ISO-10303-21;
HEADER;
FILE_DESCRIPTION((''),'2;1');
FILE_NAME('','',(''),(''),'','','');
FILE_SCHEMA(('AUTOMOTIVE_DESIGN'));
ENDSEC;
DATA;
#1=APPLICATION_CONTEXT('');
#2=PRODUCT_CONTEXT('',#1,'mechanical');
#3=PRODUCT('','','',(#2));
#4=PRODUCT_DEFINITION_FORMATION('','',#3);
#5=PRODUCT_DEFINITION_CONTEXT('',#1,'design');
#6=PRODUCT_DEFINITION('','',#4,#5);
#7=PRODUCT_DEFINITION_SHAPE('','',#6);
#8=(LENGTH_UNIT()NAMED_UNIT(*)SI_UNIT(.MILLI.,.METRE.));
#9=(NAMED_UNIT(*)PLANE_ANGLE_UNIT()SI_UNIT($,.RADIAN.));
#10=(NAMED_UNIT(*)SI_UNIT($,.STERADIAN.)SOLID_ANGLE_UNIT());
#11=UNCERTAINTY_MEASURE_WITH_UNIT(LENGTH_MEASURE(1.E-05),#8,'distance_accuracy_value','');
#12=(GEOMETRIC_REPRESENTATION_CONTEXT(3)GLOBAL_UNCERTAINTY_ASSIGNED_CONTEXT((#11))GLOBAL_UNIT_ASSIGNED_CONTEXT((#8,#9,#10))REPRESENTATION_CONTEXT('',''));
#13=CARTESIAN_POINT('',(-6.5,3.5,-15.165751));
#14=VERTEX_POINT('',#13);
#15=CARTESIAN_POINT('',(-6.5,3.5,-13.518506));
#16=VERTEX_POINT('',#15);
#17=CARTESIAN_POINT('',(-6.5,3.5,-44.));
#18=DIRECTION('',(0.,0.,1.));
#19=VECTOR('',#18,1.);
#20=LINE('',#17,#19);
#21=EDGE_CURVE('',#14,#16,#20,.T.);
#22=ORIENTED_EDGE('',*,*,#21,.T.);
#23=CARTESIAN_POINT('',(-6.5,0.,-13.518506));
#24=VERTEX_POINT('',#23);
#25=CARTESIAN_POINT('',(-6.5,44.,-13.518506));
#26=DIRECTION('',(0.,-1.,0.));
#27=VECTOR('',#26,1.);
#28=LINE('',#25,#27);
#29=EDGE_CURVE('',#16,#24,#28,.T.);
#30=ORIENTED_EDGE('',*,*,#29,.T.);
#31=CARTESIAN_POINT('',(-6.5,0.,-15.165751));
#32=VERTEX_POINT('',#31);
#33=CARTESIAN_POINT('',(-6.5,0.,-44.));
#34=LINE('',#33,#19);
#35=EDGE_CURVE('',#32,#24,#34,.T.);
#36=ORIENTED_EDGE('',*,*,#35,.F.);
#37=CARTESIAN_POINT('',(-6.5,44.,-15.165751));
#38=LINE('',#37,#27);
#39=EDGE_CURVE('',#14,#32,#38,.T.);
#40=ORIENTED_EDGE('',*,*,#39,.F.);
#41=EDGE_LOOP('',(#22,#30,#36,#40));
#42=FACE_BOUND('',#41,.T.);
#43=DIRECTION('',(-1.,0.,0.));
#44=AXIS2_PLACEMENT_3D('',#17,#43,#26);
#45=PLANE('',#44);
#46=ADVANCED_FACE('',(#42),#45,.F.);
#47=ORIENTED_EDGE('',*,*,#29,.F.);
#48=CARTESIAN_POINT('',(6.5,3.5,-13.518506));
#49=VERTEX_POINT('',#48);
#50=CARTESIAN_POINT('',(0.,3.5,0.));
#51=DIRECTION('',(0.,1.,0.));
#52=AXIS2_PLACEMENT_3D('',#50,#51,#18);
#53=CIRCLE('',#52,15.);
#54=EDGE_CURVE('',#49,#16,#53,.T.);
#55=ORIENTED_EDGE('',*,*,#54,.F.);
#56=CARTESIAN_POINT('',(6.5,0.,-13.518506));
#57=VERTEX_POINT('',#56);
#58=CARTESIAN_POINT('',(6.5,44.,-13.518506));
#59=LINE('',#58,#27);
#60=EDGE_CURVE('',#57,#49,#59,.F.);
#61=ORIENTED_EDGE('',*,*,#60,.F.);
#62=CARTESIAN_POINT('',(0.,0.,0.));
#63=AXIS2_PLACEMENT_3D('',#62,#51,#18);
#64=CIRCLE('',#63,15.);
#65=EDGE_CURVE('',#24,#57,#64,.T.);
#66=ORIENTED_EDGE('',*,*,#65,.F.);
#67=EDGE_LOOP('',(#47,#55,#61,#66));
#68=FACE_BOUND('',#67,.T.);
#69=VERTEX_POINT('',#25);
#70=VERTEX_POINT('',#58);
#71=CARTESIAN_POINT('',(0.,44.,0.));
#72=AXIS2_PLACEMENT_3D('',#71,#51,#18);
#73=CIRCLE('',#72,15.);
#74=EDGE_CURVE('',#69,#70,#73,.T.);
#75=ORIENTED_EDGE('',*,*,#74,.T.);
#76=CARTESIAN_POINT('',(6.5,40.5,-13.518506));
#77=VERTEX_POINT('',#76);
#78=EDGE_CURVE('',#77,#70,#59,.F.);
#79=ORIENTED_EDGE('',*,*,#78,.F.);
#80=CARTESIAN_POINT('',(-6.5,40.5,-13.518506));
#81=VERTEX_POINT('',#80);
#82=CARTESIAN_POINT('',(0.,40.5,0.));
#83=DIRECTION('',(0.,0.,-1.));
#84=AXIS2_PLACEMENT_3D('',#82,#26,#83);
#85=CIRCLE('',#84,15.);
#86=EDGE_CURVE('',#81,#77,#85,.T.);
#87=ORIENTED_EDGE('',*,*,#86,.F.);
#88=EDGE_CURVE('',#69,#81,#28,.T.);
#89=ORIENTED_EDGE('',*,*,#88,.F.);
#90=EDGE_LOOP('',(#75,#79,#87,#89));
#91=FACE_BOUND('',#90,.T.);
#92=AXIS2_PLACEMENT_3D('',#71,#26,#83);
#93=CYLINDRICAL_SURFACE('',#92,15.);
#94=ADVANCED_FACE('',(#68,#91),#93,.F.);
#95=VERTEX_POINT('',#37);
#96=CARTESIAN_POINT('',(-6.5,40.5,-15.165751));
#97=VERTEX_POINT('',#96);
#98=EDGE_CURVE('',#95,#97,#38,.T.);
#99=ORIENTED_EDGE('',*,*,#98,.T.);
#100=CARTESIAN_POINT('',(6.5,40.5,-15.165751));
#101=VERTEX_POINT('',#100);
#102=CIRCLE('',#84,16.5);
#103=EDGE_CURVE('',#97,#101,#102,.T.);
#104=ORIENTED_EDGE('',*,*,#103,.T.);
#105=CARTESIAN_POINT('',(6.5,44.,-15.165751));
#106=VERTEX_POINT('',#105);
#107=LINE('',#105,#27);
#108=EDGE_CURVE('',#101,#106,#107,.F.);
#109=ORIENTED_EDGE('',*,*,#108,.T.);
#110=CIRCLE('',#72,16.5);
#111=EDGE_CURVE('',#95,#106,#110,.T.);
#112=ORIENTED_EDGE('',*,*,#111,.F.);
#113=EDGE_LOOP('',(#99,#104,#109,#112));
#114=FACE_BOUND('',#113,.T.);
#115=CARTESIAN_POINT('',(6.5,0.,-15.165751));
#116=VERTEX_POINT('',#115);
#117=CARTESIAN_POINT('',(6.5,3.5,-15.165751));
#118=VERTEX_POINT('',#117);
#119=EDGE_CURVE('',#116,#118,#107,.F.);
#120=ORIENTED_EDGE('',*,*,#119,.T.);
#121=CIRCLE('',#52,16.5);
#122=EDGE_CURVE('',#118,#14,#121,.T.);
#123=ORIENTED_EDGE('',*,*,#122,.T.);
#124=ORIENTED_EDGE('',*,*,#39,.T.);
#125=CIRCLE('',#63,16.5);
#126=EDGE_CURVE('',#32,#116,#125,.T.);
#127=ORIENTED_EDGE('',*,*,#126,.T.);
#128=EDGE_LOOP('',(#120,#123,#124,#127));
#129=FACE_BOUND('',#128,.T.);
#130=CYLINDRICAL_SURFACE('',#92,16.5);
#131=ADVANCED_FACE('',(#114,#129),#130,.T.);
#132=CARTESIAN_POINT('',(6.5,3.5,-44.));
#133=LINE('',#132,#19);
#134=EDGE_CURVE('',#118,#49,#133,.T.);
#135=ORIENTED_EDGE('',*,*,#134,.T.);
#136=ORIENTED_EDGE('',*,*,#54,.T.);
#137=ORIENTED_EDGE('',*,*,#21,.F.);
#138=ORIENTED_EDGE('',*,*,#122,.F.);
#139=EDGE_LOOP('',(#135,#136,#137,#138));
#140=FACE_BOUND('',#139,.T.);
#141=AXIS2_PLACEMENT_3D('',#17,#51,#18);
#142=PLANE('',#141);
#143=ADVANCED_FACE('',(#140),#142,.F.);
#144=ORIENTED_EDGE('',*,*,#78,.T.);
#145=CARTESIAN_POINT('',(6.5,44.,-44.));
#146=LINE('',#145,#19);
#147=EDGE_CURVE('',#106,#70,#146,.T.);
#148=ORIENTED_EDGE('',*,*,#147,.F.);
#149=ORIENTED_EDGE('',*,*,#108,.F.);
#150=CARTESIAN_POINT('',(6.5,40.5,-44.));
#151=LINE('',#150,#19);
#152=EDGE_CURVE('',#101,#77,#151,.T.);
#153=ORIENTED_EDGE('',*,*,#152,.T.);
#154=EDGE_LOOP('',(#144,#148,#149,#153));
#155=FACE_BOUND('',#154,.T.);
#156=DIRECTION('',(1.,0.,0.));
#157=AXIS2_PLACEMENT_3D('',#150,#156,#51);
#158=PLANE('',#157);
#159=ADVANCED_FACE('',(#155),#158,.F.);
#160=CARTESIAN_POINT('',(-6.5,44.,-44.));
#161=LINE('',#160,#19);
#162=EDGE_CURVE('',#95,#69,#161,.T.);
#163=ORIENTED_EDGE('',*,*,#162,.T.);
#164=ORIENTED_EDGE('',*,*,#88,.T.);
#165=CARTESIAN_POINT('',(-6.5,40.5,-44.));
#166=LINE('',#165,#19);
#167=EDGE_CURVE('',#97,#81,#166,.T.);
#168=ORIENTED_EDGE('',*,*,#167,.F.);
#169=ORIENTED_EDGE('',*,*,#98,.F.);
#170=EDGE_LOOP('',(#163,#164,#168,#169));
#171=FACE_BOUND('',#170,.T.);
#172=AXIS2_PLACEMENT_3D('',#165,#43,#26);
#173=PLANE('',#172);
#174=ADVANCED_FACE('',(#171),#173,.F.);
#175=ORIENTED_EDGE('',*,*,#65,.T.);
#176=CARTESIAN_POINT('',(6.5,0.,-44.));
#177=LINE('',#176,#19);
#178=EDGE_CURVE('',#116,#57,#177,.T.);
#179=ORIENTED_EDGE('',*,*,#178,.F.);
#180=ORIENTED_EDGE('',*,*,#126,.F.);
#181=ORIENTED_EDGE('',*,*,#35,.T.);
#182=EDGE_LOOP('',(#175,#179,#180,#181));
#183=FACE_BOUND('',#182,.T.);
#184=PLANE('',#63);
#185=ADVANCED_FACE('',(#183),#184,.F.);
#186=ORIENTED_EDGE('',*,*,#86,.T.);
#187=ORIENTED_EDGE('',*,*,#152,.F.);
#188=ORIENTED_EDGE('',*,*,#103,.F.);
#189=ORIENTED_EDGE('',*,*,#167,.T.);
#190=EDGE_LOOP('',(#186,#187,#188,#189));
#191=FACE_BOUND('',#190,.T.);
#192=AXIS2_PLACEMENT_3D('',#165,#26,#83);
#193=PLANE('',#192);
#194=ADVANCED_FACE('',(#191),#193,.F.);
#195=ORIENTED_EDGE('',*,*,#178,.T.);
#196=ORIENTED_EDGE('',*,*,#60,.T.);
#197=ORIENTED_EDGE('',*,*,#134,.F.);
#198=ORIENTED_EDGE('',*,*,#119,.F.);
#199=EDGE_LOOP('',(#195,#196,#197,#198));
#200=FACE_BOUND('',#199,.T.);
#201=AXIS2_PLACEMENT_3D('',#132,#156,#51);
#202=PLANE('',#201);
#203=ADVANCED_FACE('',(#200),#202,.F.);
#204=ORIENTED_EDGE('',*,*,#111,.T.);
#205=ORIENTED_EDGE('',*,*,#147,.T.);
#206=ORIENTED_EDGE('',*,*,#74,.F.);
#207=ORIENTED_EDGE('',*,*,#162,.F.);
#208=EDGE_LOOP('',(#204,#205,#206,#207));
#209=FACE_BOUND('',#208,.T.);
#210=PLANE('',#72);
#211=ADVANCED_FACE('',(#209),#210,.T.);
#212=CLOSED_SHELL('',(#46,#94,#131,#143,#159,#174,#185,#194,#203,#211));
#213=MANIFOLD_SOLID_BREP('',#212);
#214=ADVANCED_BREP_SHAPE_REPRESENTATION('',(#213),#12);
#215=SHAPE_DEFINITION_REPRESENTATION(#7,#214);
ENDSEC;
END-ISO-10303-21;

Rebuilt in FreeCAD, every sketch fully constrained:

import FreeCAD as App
import Part
import Sketcher

V = App.Vector


def add_polygon(sketch, points):
    """Adds a closed chain of lines whose ends are joined by coincident constraints."""
    first, n = sketch.GeometryCount, len(points)
    for a, b in zip(points, points[1:] + points[:1]):
        sketch.addGeometry(Part.LineSegment(App.Vector(*a, 0), App.Vector(*b, 0)), False)
    for i in range(n):
        sketch.addConstraint(Sketcher.Constraint("Coincident", first + i, 2, first + (i + 1) % n, 1))

doc = App.newDocument("Part")
body = doc.addObject("PartDesign::Body", "Body")

# Sketch on XZ plane
sketch1 = doc.addObject("Sketcher::SketchObject", "Sketch")
body.addObject(sketch1)
sketch1.AttachmentSupport = (doc.XZ_Plane, [""])
sketch1.MapMode = "FlatFace"
sketch1.addGeometry([
    Part.Circle(V(0, 0, 0), V(0, 0, 1), 16.5),
    Part.Circle(V(0, 0, 0), V(0, 0, 1), 15),
], False)
sketch1.addConstraint([
    Sketcher.Constraint("Coincident", 0, 3, -1, 1),
    Sketcher.Constraint("Coincident", 1, 3, -1, 1),
    Sketcher.Constraint("Diameter", 0, 33.0),
    Sketcher.Constraint("Diameter", 1, 30.0),
])
pad1 = doc.addObject("PartDesign::Pad", "Pad")
body.addObject(pad1)
pad1.Profile = sketch1
pad1.Length = 44
pad1.Reversed = True

# Sketch on XY plane
sketch2 = doc.addObject("Sketcher::SketchObject", "Sketch001")
body.addObject(sketch2)
sketch2.AttachmentSupport = (doc.XY_Plane, [""])
sketch2.MapMode = "FlatFace"
add_polygon(sketch2, [(-6.5, 3.5), (-6.5, 0), (6.5, 0), (6.5, 3.5)])  # lines 0-3
add_polygon(sketch2, [(-6.5, 44), (-6.5, 40.5), (6.5, 40.5), (6.5, 44)])  # lines 4-7
sketch2.addConstraint([
    Sketcher.Constraint("Vertical", 0),
    Sketcher.Constraint("Horizontal", 1),
    Sketcher.Constraint("Vertical", 2),
    Sketcher.Constraint("Horizontal", 3),
    Sketcher.Constraint("Vertical", 4),
    Sketcher.Constraint("Horizontal", 5),
    Sketcher.Constraint("Vertical", 6),
    Sketcher.Constraint("Horizontal", 7),
    Sketcher.Constraint("Symmetric", 0, 2, 1, 2, -1, 1),
    Sketcher.Constraint("Vertical", 3, 2, 4, 2),
    Sketcher.Constraint("Vertical", 2, 2, 5, 2),
    Sketcher.Constraint("Equal", 2, 4),
    Sketcher.Constraint("DistanceX", 1, 1, 1, 2, 13.0),
    Sketcher.Constraint("DistanceY", 0, 2, 0, 1, 3.5),
    Sketcher.Constraint("DistanceY", -1, 1, 6, 2, 44.0),
])
pocket1 = doc.addObject("PartDesign::Pocket", "Pocket")
body.addObject(pocket1)
pocket1.Profile = sketch2
pocket1.Length = 44

doc.recompute()
